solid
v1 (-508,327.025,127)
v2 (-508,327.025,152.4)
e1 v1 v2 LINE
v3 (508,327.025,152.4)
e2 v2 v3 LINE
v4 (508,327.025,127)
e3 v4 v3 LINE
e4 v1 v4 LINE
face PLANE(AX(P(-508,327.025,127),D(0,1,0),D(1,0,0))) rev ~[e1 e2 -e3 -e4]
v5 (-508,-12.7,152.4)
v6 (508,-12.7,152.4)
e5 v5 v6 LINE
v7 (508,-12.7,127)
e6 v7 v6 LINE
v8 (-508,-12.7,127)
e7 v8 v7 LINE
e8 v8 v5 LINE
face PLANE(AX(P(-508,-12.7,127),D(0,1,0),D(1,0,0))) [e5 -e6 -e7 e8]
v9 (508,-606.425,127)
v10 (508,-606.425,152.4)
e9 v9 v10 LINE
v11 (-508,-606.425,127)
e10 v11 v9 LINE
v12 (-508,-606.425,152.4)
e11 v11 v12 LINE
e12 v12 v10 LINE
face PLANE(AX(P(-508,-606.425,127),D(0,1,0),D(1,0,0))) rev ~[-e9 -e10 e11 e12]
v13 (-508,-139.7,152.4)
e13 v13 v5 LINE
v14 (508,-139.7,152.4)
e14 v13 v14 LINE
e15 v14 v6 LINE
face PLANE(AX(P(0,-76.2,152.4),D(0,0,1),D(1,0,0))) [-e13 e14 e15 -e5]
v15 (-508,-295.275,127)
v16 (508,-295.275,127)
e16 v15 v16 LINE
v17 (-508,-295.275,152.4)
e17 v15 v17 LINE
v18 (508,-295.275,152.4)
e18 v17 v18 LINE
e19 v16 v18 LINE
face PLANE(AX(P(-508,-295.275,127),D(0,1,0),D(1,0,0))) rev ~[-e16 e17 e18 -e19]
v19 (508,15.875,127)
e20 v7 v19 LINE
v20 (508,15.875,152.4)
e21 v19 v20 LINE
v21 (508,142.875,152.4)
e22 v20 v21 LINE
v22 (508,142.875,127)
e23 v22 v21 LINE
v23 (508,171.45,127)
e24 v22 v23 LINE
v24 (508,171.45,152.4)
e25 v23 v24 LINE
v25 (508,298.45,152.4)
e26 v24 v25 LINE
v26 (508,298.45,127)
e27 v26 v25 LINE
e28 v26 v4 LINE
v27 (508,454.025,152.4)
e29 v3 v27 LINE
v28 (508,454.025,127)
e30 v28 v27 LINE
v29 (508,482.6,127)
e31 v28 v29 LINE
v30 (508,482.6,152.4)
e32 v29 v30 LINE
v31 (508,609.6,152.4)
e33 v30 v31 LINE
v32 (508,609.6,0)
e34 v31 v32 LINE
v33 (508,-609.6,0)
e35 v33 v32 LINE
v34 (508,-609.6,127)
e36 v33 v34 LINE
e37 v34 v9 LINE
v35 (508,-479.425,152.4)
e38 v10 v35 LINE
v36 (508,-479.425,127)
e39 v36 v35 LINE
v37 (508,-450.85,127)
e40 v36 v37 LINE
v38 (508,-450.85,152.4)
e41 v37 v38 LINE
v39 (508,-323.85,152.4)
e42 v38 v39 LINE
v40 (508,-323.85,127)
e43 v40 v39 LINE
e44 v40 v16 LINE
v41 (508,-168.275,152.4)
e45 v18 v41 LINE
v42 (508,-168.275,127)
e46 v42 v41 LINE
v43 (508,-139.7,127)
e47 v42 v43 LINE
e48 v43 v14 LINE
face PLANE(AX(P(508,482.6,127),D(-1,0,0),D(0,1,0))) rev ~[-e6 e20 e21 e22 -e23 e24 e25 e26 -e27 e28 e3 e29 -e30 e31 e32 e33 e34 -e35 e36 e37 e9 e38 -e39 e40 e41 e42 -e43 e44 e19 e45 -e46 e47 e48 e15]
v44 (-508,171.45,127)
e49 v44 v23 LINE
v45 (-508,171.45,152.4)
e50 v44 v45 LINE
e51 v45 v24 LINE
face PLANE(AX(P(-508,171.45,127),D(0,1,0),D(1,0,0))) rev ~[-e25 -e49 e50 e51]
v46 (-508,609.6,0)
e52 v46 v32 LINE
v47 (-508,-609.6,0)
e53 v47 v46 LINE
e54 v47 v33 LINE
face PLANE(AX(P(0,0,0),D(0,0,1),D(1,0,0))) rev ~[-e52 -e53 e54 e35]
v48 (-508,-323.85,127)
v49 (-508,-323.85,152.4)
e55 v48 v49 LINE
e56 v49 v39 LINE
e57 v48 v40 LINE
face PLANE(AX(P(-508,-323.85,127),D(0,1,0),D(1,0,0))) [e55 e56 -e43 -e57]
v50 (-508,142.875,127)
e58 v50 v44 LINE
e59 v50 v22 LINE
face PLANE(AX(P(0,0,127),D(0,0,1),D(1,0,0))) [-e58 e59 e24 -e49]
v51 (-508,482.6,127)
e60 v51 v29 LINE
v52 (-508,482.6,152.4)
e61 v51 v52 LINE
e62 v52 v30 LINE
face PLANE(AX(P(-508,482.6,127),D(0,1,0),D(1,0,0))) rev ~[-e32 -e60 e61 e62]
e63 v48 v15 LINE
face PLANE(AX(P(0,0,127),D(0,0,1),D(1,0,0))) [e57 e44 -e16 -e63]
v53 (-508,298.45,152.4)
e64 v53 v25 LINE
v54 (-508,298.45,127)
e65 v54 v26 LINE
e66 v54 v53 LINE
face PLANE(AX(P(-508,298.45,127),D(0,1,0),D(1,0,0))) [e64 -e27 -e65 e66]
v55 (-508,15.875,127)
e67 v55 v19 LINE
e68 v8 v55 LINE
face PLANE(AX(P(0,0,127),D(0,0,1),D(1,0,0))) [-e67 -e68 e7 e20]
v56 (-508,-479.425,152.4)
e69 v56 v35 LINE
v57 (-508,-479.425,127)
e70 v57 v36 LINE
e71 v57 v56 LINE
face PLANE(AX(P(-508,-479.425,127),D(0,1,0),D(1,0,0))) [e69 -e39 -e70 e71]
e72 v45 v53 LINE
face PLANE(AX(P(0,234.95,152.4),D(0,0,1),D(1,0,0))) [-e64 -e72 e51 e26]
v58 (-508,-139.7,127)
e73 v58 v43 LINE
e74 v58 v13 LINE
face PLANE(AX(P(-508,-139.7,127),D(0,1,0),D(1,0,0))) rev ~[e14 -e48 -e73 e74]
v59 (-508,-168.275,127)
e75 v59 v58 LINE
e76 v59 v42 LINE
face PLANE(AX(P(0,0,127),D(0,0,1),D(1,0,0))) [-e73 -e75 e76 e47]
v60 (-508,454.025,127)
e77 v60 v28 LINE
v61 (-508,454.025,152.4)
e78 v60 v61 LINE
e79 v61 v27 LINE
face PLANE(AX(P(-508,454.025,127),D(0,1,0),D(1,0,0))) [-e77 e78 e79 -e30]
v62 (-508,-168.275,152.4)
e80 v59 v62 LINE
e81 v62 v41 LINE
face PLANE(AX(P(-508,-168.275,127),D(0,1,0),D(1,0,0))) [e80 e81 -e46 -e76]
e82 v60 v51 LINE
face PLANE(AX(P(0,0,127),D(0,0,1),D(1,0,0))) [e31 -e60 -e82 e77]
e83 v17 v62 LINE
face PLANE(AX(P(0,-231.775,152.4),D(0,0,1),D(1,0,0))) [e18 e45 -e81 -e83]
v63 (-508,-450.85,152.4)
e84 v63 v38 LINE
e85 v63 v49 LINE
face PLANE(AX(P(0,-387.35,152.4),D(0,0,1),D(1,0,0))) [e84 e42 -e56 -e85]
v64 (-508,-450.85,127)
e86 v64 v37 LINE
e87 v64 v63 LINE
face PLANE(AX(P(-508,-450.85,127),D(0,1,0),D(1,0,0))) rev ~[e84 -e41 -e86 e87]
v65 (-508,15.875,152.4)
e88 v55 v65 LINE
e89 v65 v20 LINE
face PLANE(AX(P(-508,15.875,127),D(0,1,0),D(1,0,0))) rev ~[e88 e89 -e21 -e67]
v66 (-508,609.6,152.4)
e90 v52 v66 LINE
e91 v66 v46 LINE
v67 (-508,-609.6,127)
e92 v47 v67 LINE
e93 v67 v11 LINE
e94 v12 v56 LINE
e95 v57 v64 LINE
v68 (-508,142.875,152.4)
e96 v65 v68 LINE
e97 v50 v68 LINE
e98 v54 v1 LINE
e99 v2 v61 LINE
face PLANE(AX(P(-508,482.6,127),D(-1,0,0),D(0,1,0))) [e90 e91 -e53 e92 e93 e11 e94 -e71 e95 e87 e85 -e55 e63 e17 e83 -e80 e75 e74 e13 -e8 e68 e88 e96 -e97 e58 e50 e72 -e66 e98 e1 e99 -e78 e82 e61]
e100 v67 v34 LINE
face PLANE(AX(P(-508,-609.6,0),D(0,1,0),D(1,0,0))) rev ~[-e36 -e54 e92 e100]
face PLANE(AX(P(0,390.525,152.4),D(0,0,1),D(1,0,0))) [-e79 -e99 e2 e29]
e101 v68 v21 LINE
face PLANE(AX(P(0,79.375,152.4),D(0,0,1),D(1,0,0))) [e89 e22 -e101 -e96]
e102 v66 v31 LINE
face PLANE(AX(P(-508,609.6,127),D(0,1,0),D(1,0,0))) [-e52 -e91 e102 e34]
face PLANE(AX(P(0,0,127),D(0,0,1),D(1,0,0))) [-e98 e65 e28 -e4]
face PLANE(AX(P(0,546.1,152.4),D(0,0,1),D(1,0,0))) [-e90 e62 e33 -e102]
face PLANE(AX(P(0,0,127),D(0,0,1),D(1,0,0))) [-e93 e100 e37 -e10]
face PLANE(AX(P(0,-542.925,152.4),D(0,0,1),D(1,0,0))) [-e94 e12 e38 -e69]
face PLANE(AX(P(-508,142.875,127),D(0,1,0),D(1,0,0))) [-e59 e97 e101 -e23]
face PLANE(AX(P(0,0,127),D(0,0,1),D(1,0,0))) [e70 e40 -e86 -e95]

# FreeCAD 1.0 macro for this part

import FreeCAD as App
import Part
import Sketcher
Q = App.Units.Quantity

doc = App.newDocument("Part")
body = doc.addObject("PartDesign::Body", "Body")

# Sketch on XY plane
sketch1 = body.newObject("Sketcher::SketchObject", "Sketch")
sketch1.AttachmentSupport = (doc.getObject("XY_Plane"), [""])
sketch1.MapMode = "FlatFace"
sketch1.addGeometry(Part.LineSegment(App.Vector(-508, 609.6, 0), App.Vector(-508, -609.6, 0)), False)
sketch1.addGeometry(Part.LineSegment(App.Vector(-508, -609.6, 0), App.Vector(508, -609.6, 0)), False)
sketch1.addGeometry(Part.LineSegment(App.Vector(508, -609.6, 0), App.Vector(508, 609.6, 0)), False)
sketch1.addGeometry(Part.LineSegment(App.Vector(508, 609.6, 0), App.Vector(-508, 609.6, 0)), False)
sketch1.addConstraint(Sketcher.Constraint("Coincident", 0, 2, 1, 1))
sketch1.addConstraint(Sketcher.Constraint("Coincident", 1, 2, 2, 1))
sketch1.addConstraint(Sketcher.Constraint("Coincident", 2, 2, 3, 1))
sketch1.addConstraint(Sketcher.Constraint("Coincident", 3, 2, 0, 1))
sketch1.addConstraint(Sketcher.Constraint("Vertical", 0))
sketch1.addConstraint(Sketcher.Constraint("Horizontal", 1))
sketch1.addConstraint(Sketcher.Constraint("Vertical", 2))
sketch1.addConstraint(Sketcher.Constraint("Horizontal", 3))
sketch1.addConstraint(Sketcher.Constraint("Symmetric", 0, 2, 2, 2, -1, 1))
sketch1.addConstraint(Sketcher.Constraint("DistanceX", 1, 1, 1, 2, Q("40 in")))
sketch1.addConstraint(Sketcher.Constraint("DistanceY", 0, 2, 0, 1, Q("48 in")))
pad1 = body.newObject("PartDesign::Pad", "Pad")
pad1.Profile = sketch1
pad1.Length = Q("5 in")

# Sketch on XY plane
sketch2 = body.newObject("Sketcher::SketchObject", "Sketch001")
sketch2.AttachmentSupport = (doc.getObject("XY_Plane"), [""])
sketch2.MapMode = "FlatFace"
sketch2.AttachmentOffset = App.Placement(App.Vector(0, 0, 5 * 25.4), App.Rotation())
sketch2.addGeometry(Part.LineSegment(App.Vector(-508, 609.6, 0), App.Vector(-508, 482.6, 0)), False)
sketch2.addGeometry(Part.LineSegment(App.Vector(-508, 482.6, 0), App.Vector(508, 482.6, 0)), False)
sketch2.addGeometry(Part.LineSegment(App.Vector(508, 482.6, 0), App.Vector(508, 609.6, 0)), False)
sketch2.addGeometry(Part.LineSegment(App.Vector(508, 609.6, 0), App.Vector(-508, 609.6, 0)), False)
sketch2.addGeometry(Part.LineSegment(App.Vector(-508, 454.025, 0), App.Vector(-508, 327.025, 0)), False)
sketch2.addGeometry(Part.LineSegment(App.Vector(-508, 327.025, 0), App.Vector(508, 327.025, 0)), False)
sketch2.addGeometry(Part.LineSegment(App.Vector(508, 327.025, 0), App.Vector(508, 454.025, 0)), False)
sketch2.addGeometry(Part.LineSegment(App.Vector(508, 454.025, 0), App.Vector(-508, 454.025, 0)), False)
sketch2.addGeometry(Part.LineSegment(App.Vector(-508, 298.45, 0), App.Vector(-508, 171.45, 0)), False)
sketch2.addGeometry(Part.LineSegment(App.Vector(-508, 171.45, 0), App.Vector(508, 171.45, 0)), False)
sketch2.addGeometry(Part.LineSegment(App.Vector(508, 171.45, 0), App.Vector(508, 298.45, 0)), False)
sketch2.addGeometry(Part.LineSegment(App.Vector(508, 298.45, 0), App.Vector(-508, 298.45, 0)), False)
sketch2.addGeometry(Part.LineSegment(App.Vector(-508, 142.875, 0), App.Vector(-508, 15.875, 0)), False)
sketch2.addGeometry(Part.LineSegment(App.Vector(-508, 15.875, 0), App.Vector(508, 15.875, 0)), False)
sketch2.addGeometry(Part.LineSegment(App.Vector(508, 15.875, 0), App.Vector(508, 142.875, 0)), False)
sketch2.addGeometry(Part.LineSegment(App.Vector(508, 142.875, 0), App.Vector(-508, 142.875, 0)), False)
sketch2.addGeometry(Part.LineSegment(App.Vector(-508, -12.7, 0), App.Vector(-508, -139.7, 0)), False)
sketch2.addGeometry(Part.LineSegment(App.Vector(-508, -139.7, 0), App.Vector(508, -139.7, 0)), False)
sketch2.addGeometry(Part.LineSegment(App.Vector(508, -139.7, 0), App.Vector(508, -12.7, 0)), False)
sketch2.addGeometry(Part.LineSegment(App.Vector(508, -12.7, 0), App.Vector(-508, -12.7, 0)), False)
sketch2.addGeometry(Part.LineSegment(App.Vector(-508, -168.275, 0), App.Vector(-508, -295.275, 0)), False)
sketch2.addGeometry(Part.LineSegment(App.Vector(-508, -295.275, 0), App.Vector(508, -295.275, 0)), False)
sketch2.addGeometry(Part.LineSegment(App.Vector(508, -295.275, 0), App.Vector(508, -168.275, 0)), False)
sketch2.addGeometry(Part.LineSegment(App.Vector(508, -168.275, 0), App.Vector(-508, -168.275, 0)), False)
sketch2.addGeometry(Part.LineSegment(App.Vector(-508, -323.85, 0), App.Vector(-508, -450.85, 0)), False)
sketch2.addGeometry(Part.LineSegment(App.Vector(-508, -450.85, 0), App.Vector(508, -450.85, 0)), False)
sketch2.addGeometry(Part.LineSegment(App.Vector(508, -450.85, 0), App.Vector(508, -323.85, 0)), False)
sketch2.addGeometry(Part.LineSegment(App.Vector(508, -323.85, 0), App.Vector(-508, -323.85, 0)), False)
sketch2.addGeometry(Part.LineSegment(App.Vector(-508, -479.425, 0), App.Vector(-508, -606.425, 0)), False)
sketch2.addGeometry(Part.LineSegment(App.Vector(-508, -606.425, 0), App.Vector(508, -606.425, 0)), False)
sketch2.addGeometry(Part.LineSegment(App.Vector(508, -606.425, 0), App.Vector(508, -479.425, 0)), False)
sketch2.addGeometry(Part.LineSegment(App.Vector(508, -479.425, 0), App.Vector(-508, -479.425, 0)), False)
sketch2.addConstraint(Sketcher.Constraint("Coincident", 0, 2, 1, 1))
sketch2.addConstraint(Sketcher.Constraint("Coincident", 1, 2, 2, 1))
sketch2.addConstraint(Sketcher.Constraint("Coincident", 2, 2, 3, 1))
sketch2.addConstraint(Sketcher.Constraint("Coincident", 3, 2, 0, 1))
sketch2.addConstraint(Sketcher.Constraint("Coincident", 4, 2, 5, 1))
sketch2.addConstraint(Sketcher.Constraint("Coincident", 5, 2, 6, 1))
sketch2.addConstraint(Sketcher.Constraint("Coincident", 6, 2, 7, 1))
sketch2.addConstraint(Sketcher.Constraint("Coincident", 7, 2, 4, 1))
sketch2.addConstraint(Sketcher.Constraint("Coincident", 8, 2, 9, 1))
sketch2.addConstraint(Sketcher.Constraint("Coincident", 9, 2, 10, 1))
sketch2.addConstraint(Sketcher.Constraint("Coincident", 10, 2, 11, 1))
sketch2.addConstraint(Sketcher.Constraint("Coincident", 11, 2, 8, 1))
sketch2.addConstraint(Sketcher.Constraint("Coincident", 12, 2, 13, 1))
sketch2.addConstraint(Sketcher.Constraint("Coincident", 13, 2, 14, 1))
sketch2.addConstraint(Sketcher.Constraint("Coincident", 14, 2, 15, 1))
sketch2.addConstraint(Sketcher.Constraint("Coincident", 15, 2, 12, 1))
sketch2.addConstraint(Sketcher.Constraint("Coincident", 16, 2, 17, 1))
sketch2.addConstraint(Sketcher.Constraint("Coincident", 17, 2, 18, 1))
sketch2.addConstraint(Sketcher.Constraint("Coincident", 18, 2, 19, 1))
sketch2.addConstraint(Sketcher.Constraint("Coincident", 19, 2, 16, 1))
sketch2.addConstraint(Sketcher.Constraint("Coincident", 20, 2, 21, 1))
sketch2.addConstraint(Sketcher.Constraint("Coincident", 21, 2, 22, 1))
sketch2.addConstraint(Sketcher.Constraint("Coincident", 22, 2, 23, 1))
sketch2.addConstraint(Sketcher.Constraint("Coincident", 23, 2, 20, 1))
sketch2.addConstraint(Sketcher.Constraint("Coincident", 24, 2, 25, 1))
sketch2.addConstraint(Sketcher.Constraint("Coincident", 25, 2, 26, 1))
sketch2.addConstraint(Sketcher.Constraint("Coincident", 26, 2, 27, 1))
sketch2.addConstraint(Sketcher.Constraint("Coincident", 27, 2, 24, 1))
sketch2.addConstraint(Sketcher.Constraint("Coincident", 28, 2, 29, 1))
sketch2.addConstraint(Sketcher.Constraint("Coincident", 29, 2, 30, 1))
sketch2.addConstraint(Sketcher.Constraint("Coincident", 30, 2, 31, 1))
sketch2.addConstraint(Sketcher.Constraint("Coincident", 31, 2, 28, 1))
sketch2.addConstraint(Sketcher.Constraint("Vertical", 0))
sketch2.addConstraint(Sketcher.Constraint("Horizontal", 1))
sketch2.addConstraint(Sketcher.Constraint("Vertical", 2))
sketch2.addConstraint(Sketcher.Constraint("Horizontal", 3))
sketch2.addConstraint(Sketcher.Constraint("Vertical", 4))
sketch2.addConstraint(Sketcher.Constraint("Horizontal", 5))
sketch2.addConstraint(Sketcher.Constraint("Vertical", 6))
sketch2.addConstraint(Sketcher.Constraint("Horizontal", 7))
sketch2.addConstraint(Sketcher.Constraint("Vertical", 8))
sketch2.addConstraint(Sketcher.Constraint("Horizontal", 9))
sketch2.addConstraint(Sketcher.Constraint("Vertical", 10))
sketch2.addConstraint(Sketcher.Constraint("Horizontal", 11))
sketch2.addConstraint(Sketcher.Constraint("Vertical", 12))
sketch2.addConstraint(Sketcher.Constraint("Horizontal", 13))
sketch2.addConstraint(Sketcher.Constraint("Vertical", 14))
sketch2.addConstraint(Sketcher.Constraint("Horizontal", 15))
sketch2.addConstraint(Sketcher.Constraint("Vertical", 16))
sketch2.addConstraint(Sketcher.Constraint("Horizontal", 17))
sketch2.addConstraint(Sketcher.Constraint("Vertical", 18))
sketch2.addConstraint(Sketcher.Constraint("Horizontal", 19))
sketch2.addConstraint(Sketcher.Constraint("Vertical", 20))
sketch2.addConstraint(Sketcher.Constraint("Horizontal", 21))
sketch2.addConstraint(Sketcher.Constraint("Vertical", 22))
sketch2.addConstraint(Sketcher.Constraint("Horizontal", 23))
sketch2.addConstraint(Sketcher.Constraint("Vertical", 24))
sketch2.addConstraint(Sketcher.Constraint("Horizontal", 25))
sketch2.addConstraint(Sketcher.Constraint("Vertical", 26))
sketch2.addConstraint(Sketcher.Constraint("Horizontal", 27))
sketch2.addConstraint(Sketcher.Constraint("Vertical", 28))
sketch2.addConstraint(Sketcher.Constraint("Horizontal", 29))
sketch2.addConstraint(Sketcher.Constraint("Vertical", 30))
sketch2.addConstraint(Sketcher.Constraint("Horizontal", 31))
sketch2.addConstraint(Sketcher.Constraint("Vertical", 3, 2, 4, 2))
sketch2.addConstraint(Sketcher.Constraint("Vertical", 2, 2, 5, 2))
sketch2.addConstraint(Sketcher.Constraint("Vertical", 7, 2, 8, 2))
sketch2.addConstraint(Sketcher.Constraint("Vertical", 6, 2, 9, 2))
sketch2.addConstraint(Sketcher.Constraint("Vertical", 11, 2, 12, 2))
sketch2.addConstraint(Sketcher.Constraint("Vertical", 10, 2, 13, 2))
sketch2.addConstraint(Sketcher.Constraint("Vertical", 15, 2, 16, 2))
sketch2.addConstraint(Sketcher.Constraint("Vertical", 14, 2, 17, 2))
sketch2.addConstraint(Sketcher.Constraint("Vertical", 19, 2, 20, 2))
sketch2.addConstraint(Sketcher.Constraint("Vertical", 18, 2, 21, 2))
sketch2.addConstraint(Sketcher.Constraint("Vertical", 23, 2, 24, 2))
sketch2.addConstraint(Sketcher.Constraint("Vertical", 22, 2, 25, 2))
sketch2.addConstraint(Sketcher.Constraint("Vertical", 27, 2, 28, 2))
sketch2.addConstraint(Sketcher.Constraint("Vertical", 26, 2, 29, 2))
sketch2.addConstraint(Sketcher.Constraint("Equal", 2, 4))
sketch2.addConstraint(Sketcher.Constraint("Equal", 6, 8))
sketch2.addConstraint(Sketcher.Constraint("Equal", 10, 12))
sketch2.addConstraint(Sketcher.Constraint("Equal", 14, 16))
sketch2.addConstraint(Sketcher.Constraint("Equal", 18, 20))
sketch2.addConstraint(Sketcher.Constraint("Equal", 22, 24))
sketch2.addConstraint(Sketcher.Constraint("Equal", 26, 28))
sketch2.addConstraint(Sketcher.Constraint("DistanceX", 1, 1, 1, 2, Q("40 in")))
sketch2.addConstraint(Sketcher.Constraint("DistanceY", 0, 2, 0, 1, Q("5 in")))
sketch2.addConstraint(Sketcher.Constraint("DistanceX", 0, 2, -1, 1, Q("20 in")))
sketch2.addConstraint(Sketcher.Constraint("DistanceY", -1, 1, 0, 2, Q("19 in")))
sketch2.addConstraint(Sketcher.Constraint("DistanceY", 16, 2, -1, 1, Q("5.5 in")))
sketch2.addConstraint(Sketcher.Constraint("DistanceY", -1, 1, 8, 2, Q("6.75 in")))
sketch2.addConstraint(Sketcher.Constraint("DistanceY", 24, 2, -1, 1, Q("17.75 in")))
sketch2.addConstraint(Sketcher.Constraint("DistanceY", 12, 2, 4, 2, Q("12.25 in")))
sketch2.addConstraint(Sketcher.Constraint("DistanceY", 20, 2, 12, 2, Q("12.25 in")))
sketch2.addConstraint(Sketcher.Constraint("DistanceY", 28, 2, 20, 2, Q("12.25 in")))
sketch2.addConstraint(Sketcher.Constraint("DistanceY", -1, 1, 4, 2, Q("12.875 in")))
pad2 = body.newObject("PartDesign::Pad", "Pad001")
pad2.Profile = sketch2
pad2.Length = Q("1 in")

doc.recompute()
